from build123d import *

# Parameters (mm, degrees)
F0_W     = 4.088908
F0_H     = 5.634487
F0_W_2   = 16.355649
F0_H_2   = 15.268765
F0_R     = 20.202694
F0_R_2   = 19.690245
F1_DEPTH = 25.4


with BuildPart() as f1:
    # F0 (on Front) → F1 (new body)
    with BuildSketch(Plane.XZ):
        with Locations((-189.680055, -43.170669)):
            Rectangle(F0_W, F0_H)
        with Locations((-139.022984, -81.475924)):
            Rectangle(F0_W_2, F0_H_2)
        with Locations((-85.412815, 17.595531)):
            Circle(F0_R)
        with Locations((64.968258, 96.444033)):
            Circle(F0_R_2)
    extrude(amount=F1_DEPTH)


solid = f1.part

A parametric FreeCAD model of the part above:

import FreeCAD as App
import Part
import Sketcher

V = App.Vector
Q = App.Units.Quantity

doc = App.newDocument("Part")
body = doc.addObject("PartDesign::Body", "Body")
body.AllowCompound = True

sketch1 = doc.addObject("Sketcher::SketchObject", "Sketch")
body.addObject(sketch1)
sketch1.AttachmentSupport = (doc.XZ_Plane, [""])
sketch1.MapMode = "FlatFace"
sketch1.addGeometry([
    Part.LineSegment(V(-191.724509, -40.353426, 0), V(-191.724509, -45.987913, 0)),
    Part.LineSegment(V(-191.724509, -45.987913, 0), V(-187.635601, -45.987913, 0)),
    Part.LineSegment(V(-187.635601, -45.987913, 0), V(-187.635601, -40.353426, 0)),
    Part.LineSegment(V(-187.635601, -40.353426, 0), V(-191.724509, -40.353426, 0)),
    Part.LineSegment(V(-147.200808, -73.841542, 0), V(-147.200808, -89.110306, 0)),
    Part.LineSegment(V(-147.200808, -89.110306, 0), V(-130.845159, -89.110306, 0)),
    Part.LineSegment(V(-130.845159, -89.110306, 0), V(-130.845159, -73.841542, 0)),
    Part.LineSegment(V(-130.845159, -73.841542, 0), V(-147.200808, -73.841542, 0)),
    Part.Circle(V(-85.412815, 17.595531, 0), V(0, 0, 1), 20.202694),
    Part.Circle(V(64.968258, 96.444033, 0), V(0, 0, 1), 19.690245),
], False)
sketch1.addConstraint([
    Sketcher.Constraint("Coincident", 0, 2, 1, 1),
    Sketcher.Constraint("Coincident", 1, 2, 2, 1),
    Sketcher.Constraint("Coincident", 2, 2, 3, 1),
    Sketcher.Constraint("Coincident", 3, 2, 0, 1),
    Sketcher.Constraint("Coincident", 4, 2, 5, 1),
    Sketcher.Constraint("Coincident", 5, 2, 6, 1),
    Sketcher.Constraint("Coincident", 6, 2, 7, 1),
    Sketcher.Constraint("Coincident", 7, 2, 4, 1),
    Sketcher.Constraint("Vertical", 0),
    Sketcher.Constraint("Horizontal", 1),
    Sketcher.Constraint("Vertical", 2),
    Sketcher.Constraint("Horizontal", 3),
    Sketcher.Constraint("Vertical", 4),
    Sketcher.Constraint("Horizontal", 5),
    Sketcher.Constraint("Vertical", 6),
    Sketcher.Constraint("Horizontal", 7),
    Sketcher.Constraint("Diameter", 8, Q("40.405388 mm")),
    Sketcher.Constraint("Diameter", 9, Q("39.38049 mm")),
    Sketcher.Constraint("DistanceX", 1, 1, 1, 2, Q("4.088908 mm")),
    Sketcher.Constraint("DistanceX", 5, 1, 5, 2, Q("16.355649 mm")),
    Sketcher.Constraint("DistanceX", 1, 2, -1, 1, Q("187.635601 mm")),
    Sketcher.Constraint("DistanceY", 8, 3, 9, 3, Q("78.848502 mm")),
    Sketcher.Constraint("DistanceX", 0, 2, 4, 2, Q("44.523701 mm")),
    Sketcher.Constraint("DistanceY", 0, 2, 0, 1, Q("5.634487 mm")),
    Sketcher.Constraint("DistanceY", 4, 2, 4, 1, Q("15.268765 mm")),
    Sketcher.Constraint("DistanceY", -1, 1, 8, 3, Q("17.595531 mm")),
    Sketcher.Constraint("DistanceX", -1, 1, 9, 3, Q("64.968258 mm")),
    Sketcher.Constraint("DistanceY", 6, 2, -1, 1, Q("73.841542 mm")),
    Sketcher.Constraint("DistanceY", 2, 2, 9, 3, Q("136.797459 mm")),
    Sketcher.Constraint("DistanceX", 8, 3, -1, 1, Q("85.412815 mm")),
])
pad1 = doc.addObject("PartDesign::Pad", "Pad")
body.addObject(pad1)
pad1.Profile = sketch1
pad1.Length = Q("1 in")

doc.recompute()
